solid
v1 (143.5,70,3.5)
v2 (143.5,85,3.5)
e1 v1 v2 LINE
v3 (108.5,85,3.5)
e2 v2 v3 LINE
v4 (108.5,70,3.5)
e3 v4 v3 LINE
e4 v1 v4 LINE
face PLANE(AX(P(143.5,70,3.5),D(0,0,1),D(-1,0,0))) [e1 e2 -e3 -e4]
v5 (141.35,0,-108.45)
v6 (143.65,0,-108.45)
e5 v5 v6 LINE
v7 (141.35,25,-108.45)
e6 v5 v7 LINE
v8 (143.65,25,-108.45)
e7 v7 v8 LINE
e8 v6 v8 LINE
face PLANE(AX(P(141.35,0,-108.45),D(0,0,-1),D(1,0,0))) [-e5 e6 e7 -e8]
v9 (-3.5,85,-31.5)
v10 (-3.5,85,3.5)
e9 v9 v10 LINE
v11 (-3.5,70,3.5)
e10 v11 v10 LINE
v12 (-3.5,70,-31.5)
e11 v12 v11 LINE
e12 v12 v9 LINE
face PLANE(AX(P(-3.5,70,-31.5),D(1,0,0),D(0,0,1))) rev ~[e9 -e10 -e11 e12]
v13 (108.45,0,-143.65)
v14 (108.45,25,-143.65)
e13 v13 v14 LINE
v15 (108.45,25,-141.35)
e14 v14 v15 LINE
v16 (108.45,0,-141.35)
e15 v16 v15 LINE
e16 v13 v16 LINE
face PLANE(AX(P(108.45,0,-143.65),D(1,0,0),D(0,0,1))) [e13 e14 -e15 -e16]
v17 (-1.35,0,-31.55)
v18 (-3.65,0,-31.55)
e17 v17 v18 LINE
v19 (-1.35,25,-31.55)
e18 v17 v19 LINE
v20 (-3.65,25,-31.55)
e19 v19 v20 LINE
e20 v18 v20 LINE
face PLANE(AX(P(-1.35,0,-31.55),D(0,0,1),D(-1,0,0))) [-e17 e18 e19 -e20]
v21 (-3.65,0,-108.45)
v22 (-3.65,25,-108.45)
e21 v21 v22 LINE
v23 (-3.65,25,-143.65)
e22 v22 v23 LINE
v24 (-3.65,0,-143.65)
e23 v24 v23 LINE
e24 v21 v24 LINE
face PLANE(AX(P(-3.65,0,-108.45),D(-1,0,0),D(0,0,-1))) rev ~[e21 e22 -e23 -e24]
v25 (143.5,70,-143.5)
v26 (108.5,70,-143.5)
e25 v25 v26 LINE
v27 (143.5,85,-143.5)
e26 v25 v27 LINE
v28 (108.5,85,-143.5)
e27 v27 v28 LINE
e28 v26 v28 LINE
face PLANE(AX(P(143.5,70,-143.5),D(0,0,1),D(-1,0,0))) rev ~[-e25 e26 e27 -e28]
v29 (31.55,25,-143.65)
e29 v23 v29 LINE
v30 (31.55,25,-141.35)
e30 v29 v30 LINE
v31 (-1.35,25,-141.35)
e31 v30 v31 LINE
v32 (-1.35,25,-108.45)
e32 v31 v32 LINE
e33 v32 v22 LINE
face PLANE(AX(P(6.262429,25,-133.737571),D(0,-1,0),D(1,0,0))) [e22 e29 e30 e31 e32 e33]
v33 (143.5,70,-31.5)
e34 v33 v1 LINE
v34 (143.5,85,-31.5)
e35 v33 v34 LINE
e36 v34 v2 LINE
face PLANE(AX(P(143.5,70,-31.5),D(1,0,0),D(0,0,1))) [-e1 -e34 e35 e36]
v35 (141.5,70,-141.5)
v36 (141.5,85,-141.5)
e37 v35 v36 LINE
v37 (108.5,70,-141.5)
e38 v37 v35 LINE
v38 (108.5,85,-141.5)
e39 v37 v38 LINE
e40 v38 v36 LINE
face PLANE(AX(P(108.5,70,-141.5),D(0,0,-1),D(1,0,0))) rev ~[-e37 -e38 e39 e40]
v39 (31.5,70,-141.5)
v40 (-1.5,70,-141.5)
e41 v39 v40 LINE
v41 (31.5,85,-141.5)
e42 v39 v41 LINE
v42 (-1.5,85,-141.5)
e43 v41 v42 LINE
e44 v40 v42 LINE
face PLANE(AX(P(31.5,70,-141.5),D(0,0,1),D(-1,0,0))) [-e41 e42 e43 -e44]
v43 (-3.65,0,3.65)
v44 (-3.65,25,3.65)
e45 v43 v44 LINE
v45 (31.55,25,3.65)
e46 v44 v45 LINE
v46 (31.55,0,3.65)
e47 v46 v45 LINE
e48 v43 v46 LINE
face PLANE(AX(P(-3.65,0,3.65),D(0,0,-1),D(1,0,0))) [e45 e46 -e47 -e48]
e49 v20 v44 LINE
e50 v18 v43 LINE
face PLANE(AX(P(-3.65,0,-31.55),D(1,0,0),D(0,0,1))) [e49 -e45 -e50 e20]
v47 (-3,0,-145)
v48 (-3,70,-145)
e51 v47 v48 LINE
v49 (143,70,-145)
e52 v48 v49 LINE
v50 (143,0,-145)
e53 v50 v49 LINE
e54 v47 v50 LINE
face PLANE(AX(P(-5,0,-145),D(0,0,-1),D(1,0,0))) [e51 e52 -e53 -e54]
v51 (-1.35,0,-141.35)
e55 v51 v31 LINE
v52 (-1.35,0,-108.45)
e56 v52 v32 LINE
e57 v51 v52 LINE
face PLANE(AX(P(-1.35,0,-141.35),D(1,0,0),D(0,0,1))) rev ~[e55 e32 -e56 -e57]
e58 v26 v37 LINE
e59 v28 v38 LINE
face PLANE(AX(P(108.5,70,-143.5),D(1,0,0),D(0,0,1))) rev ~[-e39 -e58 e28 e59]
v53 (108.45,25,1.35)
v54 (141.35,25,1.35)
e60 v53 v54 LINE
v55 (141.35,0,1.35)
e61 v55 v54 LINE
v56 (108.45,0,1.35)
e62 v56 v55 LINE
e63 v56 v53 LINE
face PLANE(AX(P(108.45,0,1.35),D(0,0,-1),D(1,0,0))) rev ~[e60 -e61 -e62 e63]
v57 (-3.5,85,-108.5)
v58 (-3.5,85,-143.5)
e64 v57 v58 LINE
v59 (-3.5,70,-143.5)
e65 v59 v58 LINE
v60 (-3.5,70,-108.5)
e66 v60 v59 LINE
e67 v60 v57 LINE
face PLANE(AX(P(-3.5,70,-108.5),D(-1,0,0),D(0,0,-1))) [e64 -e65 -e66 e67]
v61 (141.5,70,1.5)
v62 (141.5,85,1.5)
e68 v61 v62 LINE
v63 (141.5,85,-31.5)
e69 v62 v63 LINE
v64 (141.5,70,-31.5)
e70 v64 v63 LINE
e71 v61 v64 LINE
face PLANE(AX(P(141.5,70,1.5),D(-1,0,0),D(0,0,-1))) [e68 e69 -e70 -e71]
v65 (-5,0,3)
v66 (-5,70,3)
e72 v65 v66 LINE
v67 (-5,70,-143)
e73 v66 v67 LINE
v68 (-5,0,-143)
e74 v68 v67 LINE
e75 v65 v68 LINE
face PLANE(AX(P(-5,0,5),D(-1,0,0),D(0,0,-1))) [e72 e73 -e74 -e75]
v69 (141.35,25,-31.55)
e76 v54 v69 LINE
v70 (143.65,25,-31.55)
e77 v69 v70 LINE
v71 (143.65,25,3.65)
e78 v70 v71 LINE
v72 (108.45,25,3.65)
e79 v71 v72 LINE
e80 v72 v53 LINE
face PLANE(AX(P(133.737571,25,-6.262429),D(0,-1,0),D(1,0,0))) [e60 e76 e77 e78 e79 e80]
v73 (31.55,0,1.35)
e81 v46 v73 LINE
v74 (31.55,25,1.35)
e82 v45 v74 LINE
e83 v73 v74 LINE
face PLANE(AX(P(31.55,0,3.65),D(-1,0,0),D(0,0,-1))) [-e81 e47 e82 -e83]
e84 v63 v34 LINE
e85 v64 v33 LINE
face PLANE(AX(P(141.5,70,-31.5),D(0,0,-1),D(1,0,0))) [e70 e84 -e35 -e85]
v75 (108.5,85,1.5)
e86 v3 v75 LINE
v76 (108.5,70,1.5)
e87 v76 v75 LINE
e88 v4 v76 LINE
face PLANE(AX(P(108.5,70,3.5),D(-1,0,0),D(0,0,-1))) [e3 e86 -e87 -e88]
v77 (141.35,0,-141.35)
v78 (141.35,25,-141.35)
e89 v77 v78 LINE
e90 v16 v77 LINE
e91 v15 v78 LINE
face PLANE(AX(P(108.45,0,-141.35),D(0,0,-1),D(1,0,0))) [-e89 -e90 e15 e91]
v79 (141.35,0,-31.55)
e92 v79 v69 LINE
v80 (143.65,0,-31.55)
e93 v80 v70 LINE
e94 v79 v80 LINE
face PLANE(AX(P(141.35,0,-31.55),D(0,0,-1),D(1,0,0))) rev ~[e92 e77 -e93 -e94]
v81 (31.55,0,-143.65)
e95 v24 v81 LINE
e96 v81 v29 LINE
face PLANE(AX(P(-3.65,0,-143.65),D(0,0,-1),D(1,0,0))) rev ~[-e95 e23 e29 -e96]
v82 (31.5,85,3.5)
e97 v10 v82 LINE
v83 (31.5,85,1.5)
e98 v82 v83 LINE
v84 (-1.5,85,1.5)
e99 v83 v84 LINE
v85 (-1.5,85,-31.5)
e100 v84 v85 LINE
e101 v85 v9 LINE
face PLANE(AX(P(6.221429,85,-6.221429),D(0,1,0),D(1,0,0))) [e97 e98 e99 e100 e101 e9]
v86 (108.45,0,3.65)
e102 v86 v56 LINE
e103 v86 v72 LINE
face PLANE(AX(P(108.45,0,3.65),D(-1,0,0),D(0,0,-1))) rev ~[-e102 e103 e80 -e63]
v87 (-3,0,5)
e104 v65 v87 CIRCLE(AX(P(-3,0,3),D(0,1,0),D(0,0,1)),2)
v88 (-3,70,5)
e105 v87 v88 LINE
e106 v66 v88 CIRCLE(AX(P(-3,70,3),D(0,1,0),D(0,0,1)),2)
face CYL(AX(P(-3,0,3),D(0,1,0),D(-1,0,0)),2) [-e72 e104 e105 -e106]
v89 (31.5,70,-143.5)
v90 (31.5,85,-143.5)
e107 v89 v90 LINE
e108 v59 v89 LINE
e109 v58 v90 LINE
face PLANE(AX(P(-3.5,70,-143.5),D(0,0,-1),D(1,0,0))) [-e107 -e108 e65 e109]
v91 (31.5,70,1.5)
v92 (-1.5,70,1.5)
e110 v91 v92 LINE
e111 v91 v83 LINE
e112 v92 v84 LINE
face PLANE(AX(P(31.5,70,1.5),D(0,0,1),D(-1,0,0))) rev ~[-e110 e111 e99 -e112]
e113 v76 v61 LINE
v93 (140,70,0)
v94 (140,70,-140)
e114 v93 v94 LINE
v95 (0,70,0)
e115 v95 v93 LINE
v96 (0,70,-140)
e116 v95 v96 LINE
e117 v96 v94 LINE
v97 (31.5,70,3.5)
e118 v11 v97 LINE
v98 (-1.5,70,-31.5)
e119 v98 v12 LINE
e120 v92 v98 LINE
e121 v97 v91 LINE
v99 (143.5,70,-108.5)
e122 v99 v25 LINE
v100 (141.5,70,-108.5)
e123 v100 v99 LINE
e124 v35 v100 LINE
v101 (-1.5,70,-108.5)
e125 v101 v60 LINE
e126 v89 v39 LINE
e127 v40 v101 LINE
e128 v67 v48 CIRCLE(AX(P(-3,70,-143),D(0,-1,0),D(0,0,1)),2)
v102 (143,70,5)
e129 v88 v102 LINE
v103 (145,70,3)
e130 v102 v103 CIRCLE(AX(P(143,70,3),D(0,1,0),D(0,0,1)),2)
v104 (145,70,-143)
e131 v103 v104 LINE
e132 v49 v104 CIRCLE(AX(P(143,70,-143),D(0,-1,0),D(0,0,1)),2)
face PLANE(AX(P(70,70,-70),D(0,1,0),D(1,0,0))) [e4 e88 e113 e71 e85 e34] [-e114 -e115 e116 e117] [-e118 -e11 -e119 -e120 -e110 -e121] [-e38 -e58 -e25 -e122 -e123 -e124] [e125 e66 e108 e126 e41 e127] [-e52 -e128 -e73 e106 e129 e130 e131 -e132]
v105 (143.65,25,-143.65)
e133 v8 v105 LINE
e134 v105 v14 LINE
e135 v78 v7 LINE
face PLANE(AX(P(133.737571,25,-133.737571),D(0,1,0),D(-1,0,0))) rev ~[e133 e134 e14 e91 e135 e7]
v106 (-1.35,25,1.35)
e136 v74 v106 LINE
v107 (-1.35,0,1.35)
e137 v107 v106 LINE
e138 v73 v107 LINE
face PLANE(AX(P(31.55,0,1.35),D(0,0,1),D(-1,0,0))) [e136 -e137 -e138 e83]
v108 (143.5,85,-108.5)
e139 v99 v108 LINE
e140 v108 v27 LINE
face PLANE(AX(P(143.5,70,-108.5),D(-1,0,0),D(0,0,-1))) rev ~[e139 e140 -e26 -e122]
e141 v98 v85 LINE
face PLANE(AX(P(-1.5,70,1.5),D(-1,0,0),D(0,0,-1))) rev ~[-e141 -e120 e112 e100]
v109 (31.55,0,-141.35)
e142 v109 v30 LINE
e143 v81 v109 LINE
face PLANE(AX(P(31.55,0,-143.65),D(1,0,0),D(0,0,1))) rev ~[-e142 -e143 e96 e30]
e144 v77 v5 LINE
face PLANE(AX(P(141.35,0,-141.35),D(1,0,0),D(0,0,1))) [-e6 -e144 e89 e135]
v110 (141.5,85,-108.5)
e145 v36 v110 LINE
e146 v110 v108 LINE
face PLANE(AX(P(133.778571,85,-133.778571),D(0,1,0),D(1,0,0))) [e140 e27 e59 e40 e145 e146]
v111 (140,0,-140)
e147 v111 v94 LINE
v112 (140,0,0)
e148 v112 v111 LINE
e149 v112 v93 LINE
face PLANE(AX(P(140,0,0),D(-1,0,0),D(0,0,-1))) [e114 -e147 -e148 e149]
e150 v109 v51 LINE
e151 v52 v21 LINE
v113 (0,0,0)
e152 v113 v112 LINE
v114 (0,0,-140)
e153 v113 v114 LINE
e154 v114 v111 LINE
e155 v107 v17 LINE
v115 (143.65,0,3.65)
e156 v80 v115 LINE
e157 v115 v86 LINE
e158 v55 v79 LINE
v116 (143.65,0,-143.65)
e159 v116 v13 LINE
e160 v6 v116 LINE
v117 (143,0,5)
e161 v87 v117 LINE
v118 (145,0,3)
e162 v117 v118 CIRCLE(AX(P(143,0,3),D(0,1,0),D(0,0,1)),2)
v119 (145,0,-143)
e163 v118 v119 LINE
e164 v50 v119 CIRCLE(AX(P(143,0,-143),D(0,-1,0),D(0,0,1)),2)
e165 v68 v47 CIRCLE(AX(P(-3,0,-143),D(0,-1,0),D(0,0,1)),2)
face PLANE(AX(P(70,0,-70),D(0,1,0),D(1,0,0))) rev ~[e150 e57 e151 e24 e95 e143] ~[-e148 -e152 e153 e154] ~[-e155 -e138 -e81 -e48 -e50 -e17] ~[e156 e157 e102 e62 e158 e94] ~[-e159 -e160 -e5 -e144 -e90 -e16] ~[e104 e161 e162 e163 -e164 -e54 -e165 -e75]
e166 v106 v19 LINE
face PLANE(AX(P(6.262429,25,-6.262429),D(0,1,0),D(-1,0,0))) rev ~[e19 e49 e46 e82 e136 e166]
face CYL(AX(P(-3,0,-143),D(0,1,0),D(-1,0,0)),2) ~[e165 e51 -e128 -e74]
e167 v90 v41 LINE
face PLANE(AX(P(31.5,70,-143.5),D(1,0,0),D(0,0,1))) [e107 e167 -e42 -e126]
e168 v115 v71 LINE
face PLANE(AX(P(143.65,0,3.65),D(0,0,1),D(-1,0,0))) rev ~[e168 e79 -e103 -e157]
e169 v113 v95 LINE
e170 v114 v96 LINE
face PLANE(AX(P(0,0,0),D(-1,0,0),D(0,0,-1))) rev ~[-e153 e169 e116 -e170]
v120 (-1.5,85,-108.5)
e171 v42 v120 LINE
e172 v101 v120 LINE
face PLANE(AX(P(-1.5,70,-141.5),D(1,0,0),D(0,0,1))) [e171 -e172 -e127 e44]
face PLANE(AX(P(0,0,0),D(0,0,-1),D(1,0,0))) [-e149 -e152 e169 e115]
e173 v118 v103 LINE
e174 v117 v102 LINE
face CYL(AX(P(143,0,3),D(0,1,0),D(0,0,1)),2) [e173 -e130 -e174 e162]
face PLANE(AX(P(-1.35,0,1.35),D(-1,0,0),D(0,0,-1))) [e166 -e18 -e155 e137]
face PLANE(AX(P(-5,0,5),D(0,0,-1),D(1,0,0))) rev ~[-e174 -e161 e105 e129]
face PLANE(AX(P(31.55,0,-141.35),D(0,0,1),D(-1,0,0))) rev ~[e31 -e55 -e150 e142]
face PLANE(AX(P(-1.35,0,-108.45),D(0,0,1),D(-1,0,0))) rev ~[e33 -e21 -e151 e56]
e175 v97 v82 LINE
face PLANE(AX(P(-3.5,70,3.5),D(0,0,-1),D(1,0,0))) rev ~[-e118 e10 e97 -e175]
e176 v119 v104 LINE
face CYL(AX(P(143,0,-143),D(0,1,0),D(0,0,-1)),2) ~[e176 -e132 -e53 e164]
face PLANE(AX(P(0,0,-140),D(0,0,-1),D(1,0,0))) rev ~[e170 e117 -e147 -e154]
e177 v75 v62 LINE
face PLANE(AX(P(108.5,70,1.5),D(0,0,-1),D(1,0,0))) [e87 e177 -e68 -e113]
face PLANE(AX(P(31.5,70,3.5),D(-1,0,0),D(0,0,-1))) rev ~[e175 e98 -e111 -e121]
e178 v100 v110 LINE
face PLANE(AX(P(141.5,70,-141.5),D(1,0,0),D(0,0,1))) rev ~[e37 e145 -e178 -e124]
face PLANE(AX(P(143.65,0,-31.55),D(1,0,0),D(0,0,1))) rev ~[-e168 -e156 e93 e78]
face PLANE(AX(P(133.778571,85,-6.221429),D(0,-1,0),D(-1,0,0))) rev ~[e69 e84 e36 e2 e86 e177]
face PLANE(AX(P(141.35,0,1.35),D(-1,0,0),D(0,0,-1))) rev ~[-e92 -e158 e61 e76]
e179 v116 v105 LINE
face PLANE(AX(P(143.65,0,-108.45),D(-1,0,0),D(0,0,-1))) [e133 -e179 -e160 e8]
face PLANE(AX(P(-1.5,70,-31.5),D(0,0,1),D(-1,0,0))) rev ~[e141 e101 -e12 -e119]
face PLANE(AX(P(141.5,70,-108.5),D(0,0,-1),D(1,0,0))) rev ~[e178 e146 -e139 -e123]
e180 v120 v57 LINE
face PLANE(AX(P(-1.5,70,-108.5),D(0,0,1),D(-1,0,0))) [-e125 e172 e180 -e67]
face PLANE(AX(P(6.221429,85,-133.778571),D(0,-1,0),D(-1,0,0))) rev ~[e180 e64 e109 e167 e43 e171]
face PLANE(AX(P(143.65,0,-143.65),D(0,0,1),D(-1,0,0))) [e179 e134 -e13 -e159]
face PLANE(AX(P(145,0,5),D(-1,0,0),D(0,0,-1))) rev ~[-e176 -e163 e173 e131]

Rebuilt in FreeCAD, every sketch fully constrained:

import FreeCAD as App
import Part
import Sketcher

V = App.Vector
Q = App.Units.Quantity


def edges_at(feature, points):
    """Names of the edges that pass closest to the given points."""
    edges = feature.Shape.Edges
    near = lambda p: min(range(len(edges)), key=lambda i: edges[i].distToShape(Part.Vertex(*p))[0])
    return sorted({f"Edge{near(p) + 1}" for p in points})


def add_polygon(sketch, points):
    """Adds a closed chain of lines whose ends are joined by coincident constraints."""
    first, n = sketch.GeometryCount, len(points)
    for a, b in zip(points, points[1:] + points[:1]):
        sketch.addGeometry(Part.LineSegment(App.Vector(*a, 0), App.Vector(*b, 0)), False)
    for i in range(n):
        sketch.addConstraint(Sketcher.Constraint("Coincident", first + i, 2, first + (i + 1) % n, 1))

doc = App.newDocument("Part")
body = doc.addObject("PartDesign::Body", "Body")

# Sketch on XZ plane
sketch1 = body.newObject("Sketcher::SketchObject", "Sketch")
sketch1.AttachmentSupport = (doc.getObject("XZ_Plane"), [""])
sketch1.MapMode = "FlatFace"
add_polygon(sketch1, [(-5, -145), (-5, 5), (145, 5), (145, -145)])  # lines 0-3
add_polygon(sketch1, [(140, 0), (0, 0), (0, -140), (140, -140)])  # lines 4-7
sketch1.addConstraint([
    Sketcher.Constraint("Vertical", 0),
    Sketcher.Constraint("Horizontal", 1),
    Sketcher.Constraint("Vertical", 2),
    Sketcher.Constraint("Horizontal", 3),
    Sketcher.Constraint("Horizontal", 4),
    Sketcher.Constraint("Vertical", 5),
    Sketcher.Constraint("Horizontal", 6),
    Sketcher.Constraint("Vertical", 7),
    Sketcher.Constraint("Coincident", 4, 2, -1, 1),
    Sketcher.Constraint("Equal", 3, 0),
    Sketcher.Constraint("Equal", 6, 5),
    Sketcher.Constraint("DistanceX", 1, 1, 1, 2, Q("150 mm")),
    Sketcher.Constraint("DistanceX", 4, 2, 4, 1, Q("140 mm")),
    Sketcher.Constraint("DistanceX", 0, 2, -1, 1, Q("5 mm")),
    Sketcher.Constraint("DistanceY", -1, 1, 0, 2, Q("5 mm")),
])
pad1 = body.newObject("PartDesign::Pad", "Pad")
pad1.Profile = sketch1
pad1.Length = 70
pad1.Reversed = True

# Sketch on XZ plane
sketch2 = body.newObject("Sketcher::SketchObject", "Sketch001")
sketch2.AttachmentSupport = (doc.getObject("XZ_Plane"), [""])
sketch2.MapMode = "FlatFace"
sketch2.AttachmentOffset = App.Placement(V(0, 0, -70), App.Rotation())
add_polygon(sketch2, [(-3.5, -143.5), (-3.5, -108.5), (-1.5, -108.5), (-1.5, -141.5), (31.5, -141.5), (31.5, -143.5)])  # lines 0-5
add_polygon(sketch2, [(143.5, -108.5), (143.5, -143.5), (108.5, -143.5), (108.5, -141.5), (141.5, -141.5), (141.5, -108.5)])  # lines 6-11
add_polygon(sketch2, [(143.5, 3.5), (143.5, -31.5), (141.5, -31.5), (141.5, 1.5), (108.5, 1.5), (108.5, 3.5)])  # lines 12-17
add_polygon(sketch2, [(-3.5, -31.5), (-3.5, 3.5), (31.5, 3.5), (31.5, 1.5), (-1.5, 1.5), (-1.5, -31.5)])  # lines 18-23
sketch2.addConstraint([
    Sketcher.Constraint("Vertical", 0),
    Sketcher.Constraint("Horizontal", 1),
    Sketcher.Constraint("Vertical", 2),
    Sketcher.Constraint("Horizontal", 3),
    Sketcher.Constraint("Vertical", 4),
    Sketcher.Constraint("Horizontal", 5),
    Sketcher.Constraint("Vertical", 6),
    Sketcher.Constraint("Horizontal", 7),
    Sketcher.Constraint("Vertical", 8),
    Sketcher.Constraint("Horizontal", 9),
    Sketcher.Constraint("Vertical", 10),
    Sketcher.Constraint("Horizontal", 11),
    Sketcher.Constraint("Vertical", 12),
    Sketcher.Constraint("Horizontal", 13),
    Sketcher.Constraint("Vertical", 14),
    Sketcher.Constraint("Horizontal", 15),
    Sketcher.Constraint("Vertical", 16),
    Sketcher.Constraint("Horizontal", 17),
    Sketcher.Constraint("Vertical", 18),
    Sketcher.Constraint("Horizontal", 19),
    Sketcher.Constraint("Vertical", 20),
    Sketcher.Constraint("Horizontal", 21),
    Sketcher.Constraint("Vertical", 22),
    Sketcher.Constraint("Horizontal", 23),
    Sketcher.Constraint("Horizontal", 5, 2, 6, 2),
    Sketcher.Constraint("Horizontal", 3, 2, 8, 2),
    Sketcher.Constraint("Horizontal", 1, 2, 10, 2),
    Sketcher.Constraint("Horizontal", 17, 2, 18, 2),
    Sketcher.Constraint("Horizontal", 15, 2, 20, 2),
    Sketcher.Constraint("Horizontal", 13, 2, 22, 2),
    Sketcher.Constraint("Vertical", 11, 2, 12, 2),
    Sketcher.Constraint("Vertical", 10, 2, 13, 2),
    Sketcher.Constraint("Vertical", 8, 2, 15, 2),
    Sketcher.Constraint("Vertical", 5, 2, 18, 2),
    Sketcher.Constraint("Vertical", 4, 2, 19, 2),
    Sketcher.Constraint("Vertical", 2, 2, 21, 2),
    Sketcher.Constraint("Equal", 5, 7),
    Sketcher.Constraint("Equal", 3, 9),
    Sketcher.Constraint("Equal", 19, 0),
    Sketcher.Constraint("Equal", 21, 2),
    Sketcher.Constraint("Equal", 6, 12),
    Sketcher.Constraint("Equal", 10, 14),
    Sketcher.Constraint("DistanceX", 1, 1, 1, 2, Q("2 mm")),
    Sketcher.Constraint("DistanceX", 3, 1, 3, 2, Q("33 mm")),
    Sketcher.Constraint("DistanceX", 4, 2, 6, 2, Q("112 mm")),
    Sketcher.Constraint("DistanceY", 11, 2, 12, 2, Q("77 mm")),
    Sketcher.Constraint("DistanceX", 0, 2, -1, 1, Q("3.5 mm")),
    Sketcher.Constraint("DistanceY", 0, 2, -1, 1, Q("108.5 mm")),
])
pad2 = body.newObject("PartDesign::Pad", "Pad001")
pad2.Profile = sketch2
pad2.Length = 15
pad2.Reversed = True

# Sketch on XZ plane
sketch3 = body.newObject("Sketcher::SketchObject", "Sketch002")
sketch3.AttachmentSupport = (doc.getObject("XZ_Plane"), [""])
sketch3.MapMode = "FlatFace"
add_polygon(sketch3, [(31.6, 3.6), (-3.6, 3.6), (-3.6, -31.6), (-1.4, -31.6), (-1.4, 1.4), (31.6, 1.4)])  # lines 0-5
add_polygon(sketch3, [(143.7, -31.6), (143.7, 3.6), (108.5, 3.6), (108.5, 1.4), (141.3, 1.4), (141.3, -31.6)])  # lines 6-11
add_polygon(sketch3, [(108.5, -143.7), (143.7, -143.7), (143.7, -108.5), (141.3, -108.5), (141.3, -141.3), (108.5, -141.3)])  # lines 12-17
add_polygon(sketch3, [(-3.6, -108.5), (-3.6, -143.7), (31.6, -143.7), (31.6, -141.3), (-1.4, -141.3), (-1.4, -108.5)])  # lines 18-23
sketch3.addConstraint([
    Sketcher.Constraint("Horizontal", 0),
    Sketcher.Constraint("Vertical", 1),
    Sketcher.Constraint("Horizontal", 2),
    Sketcher.Constraint("Vertical", 3),
    Sketcher.Constraint("Horizontal", 4),
    Sketcher.Constraint("Vertical", 5),
    Sketcher.Constraint("Vertical", 6),
    Sketcher.Constraint("Horizontal", 7),
    Sketcher.Constraint("Vertical", 8),
    Sketcher.Constraint("Horizontal", 9),
    Sketcher.Constraint("Vertical", 10),
    Sketcher.Constraint("Horizontal", 11),
    Sketcher.Constraint("Horizontal", 12),
    Sketcher.Constraint("Vertical", 13),
    Sketcher.Constraint("Horizontal", 14),
    Sketcher.Constraint("Vertical", 15),
    Sketcher.Constraint("Horizontal", 16),
    Sketcher.Constraint("Vertical", 17),
    Sketcher.Constraint("Vertical", 18),
    Sketcher.Constraint("Horizontal", 19),
    Sketcher.Constraint("Vertical", 20),
    Sketcher.Constraint("Horizontal", 21),
    Sketcher.Constraint("Vertical", 22),
    Sketcher.Constraint("Horizontal", 23),
    Sketcher.Constraint("Horizontal", 5, 2, 6, 2),
    Sketcher.Constraint("Horizontal", 4, 2, 8, 2),
    Sketcher.Constraint("Horizontal", 2, 2, 10, 2),
    Sketcher.Constraint("Horizontal", 17, 2, 18, 2),
    Sketcher.Constraint("Horizontal", 16, 2, 20, 2),
    Sketcher.Constraint("Horizontal", 14, 2, 22, 2),
    Sketcher.Constraint("Vertical", 11, 2, 12, 2),
    Sketcher.Constraint("Vertical", 10, 2, 14, 2),
    Sketcher.Constraint("Vertical", 8, 2, 16, 2),
    Sketcher.Constraint("Vertical", 1, 2, 18, 2),
    Sketcher.Constraint("Vertical", 5, 2, 19, 2),
    Sketcher.Constraint("Vertical", 3, 2, 21, 2),
    Sketcher.Constraint("Equal", 0, 7),
    Sketcher.Constraint("Equal", 4, 9),
    Sketcher.Constraint("Equal", 19, 1),
    Sketcher.Constraint("Equal", 21, 3),
    Sketcher.Constraint("Equal", 6, 13),
    Sketcher.Constraint("Equal", 10, 15),
    Sketcher.Constraint("DistanceX", 0, 2, 0, 1, Q("35.2 mm")),
    Sketcher.Constraint("DistanceX", 2, 1, 2, 2, Q("2.3 mm")),
    Sketcher.Constraint("DistanceX", 3, 2, 6, 2, Q("145 mm")),
    Sketcher.Constraint("DistanceY", 12, 2, 9, 2, Q("145 mm")),
    Sketcher.Constraint("DistanceX", 0, 2, -1, 1, Q("3.65 mm")),
    Sketcher.Constraint("DistanceY", -1, 1, 0, 2, Q("3.65 mm")),
])
pocket1 = body.newObject("PartDesign::Pocket", "Pocket")
pocket1.Profile = sketch3
pocket1.Length = 25
doc.recompute()

fillet = body.newObject("PartDesign::Fillet", "Fillet")
fillet.Base = (pocket1, edges_at(pocket1, [
    (-5, 35, 5),
    (-5, 35, -145),
    (145, 35, -145),
    (145, 35, 5),
]))
fillet.Radius = 2

doc.recompute()
